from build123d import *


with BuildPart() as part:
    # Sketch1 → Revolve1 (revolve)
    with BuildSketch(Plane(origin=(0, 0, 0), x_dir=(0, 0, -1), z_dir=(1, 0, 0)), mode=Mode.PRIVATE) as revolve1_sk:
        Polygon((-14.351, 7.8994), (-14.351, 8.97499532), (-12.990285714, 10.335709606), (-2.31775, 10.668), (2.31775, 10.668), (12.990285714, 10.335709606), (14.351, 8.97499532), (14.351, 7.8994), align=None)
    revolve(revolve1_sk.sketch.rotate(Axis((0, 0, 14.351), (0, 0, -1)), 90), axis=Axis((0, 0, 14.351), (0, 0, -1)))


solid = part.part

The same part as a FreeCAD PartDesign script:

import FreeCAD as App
import Part
import Sketcher
Q = App.Units.Quantity

doc = App.newDocument("Part")
body = doc.addObject("PartDesign::Body", "Body")

# Sketch on YZ plane
sketch1 = body.newObject("Sketcher::SketchObject", "Sketch")
sketch1.AttachmentSupport = (doc.getObject("YZ_Plane"), [""])
sketch1.MapMode = "FlatFace"
sketch1.addGeometry(Part.LineSegment(App.Vector(9, 14.4, 0), App.Vector(7.9, 14.4, 0)), False)
sketch1.addGeometry(Part.LineSegment(App.Vector(7.9, 14.4, 0), App.Vector(7.9, -14.4, 0)), False)
sketch1.addGeometry(Part.LineSegment(App.Vector(7.9, -14.4, 0), App.Vector(9, -14.4, 0)), False)
sketch1.addGeometry(Part.LineSegment(App.Vector(9, -14.4, 0), App.Vector(10.3, -13, 0)), False)
sketch1.addGeometry(Part.LineSegment(App.Vector(10.3, -13, 0), App.Vector(10.7, -2.3, 0)), False)
sketch1.addGeometry(Part.LineSegment(App.Vector(10.7, -2.3, 0), App.Vector(10.7, 2.3, 0)), False)
sketch1.addGeometry(Part.LineSegment(App.Vector(10.7, 2.3, 0), App.Vector(10.3, 13, 0)), False)
sketch1.addGeometry(Part.LineSegment(App.Vector(10.3, 13, 0), App.Vector(9, 14.4, 0)), False)
sketch1.addConstraint(Sketcher.Constraint("Coincident", 0, 2, 1, 1))
sketch1.addConstraint(Sketcher.Constraint("Coincident", 1, 2, 2, 1))
sketch1.addConstraint(Sketcher.Constraint("Coincident", 2, 2, 3, 1))
sketch1.addConstraint(Sketcher.Constraint("Coincident", 3, 2, 4, 1))
sketch1.addConstraint(Sketcher.Constraint("Coincident", 4, 2, 5, 1))
sketch1.addConstraint(Sketcher.Constraint("Coincident", 5, 2, 6, 1))
sketch1.addConstraint(Sketcher.Constraint("Coincident", 6, 2, 7, 1))
sketch1.addConstraint(Sketcher.Constraint("Coincident", 7, 2, 0, 1))
sketch1.addConstraint(Sketcher.Constraint("Horizontal", 0))
sketch1.addConstraint(Sketcher.Constraint("Vertical", 1))
sketch1.addConstraint(Sketcher.Constraint("Horizontal", 2))
sketch1.addConstraint(Sketcher.Constraint("Vertical", 5))
sketch1.addConstraint(Sketcher.Constraint("Symmetric", 3, 2, 6, 2, -1))
sketch1.addConstraint(Sketcher.Constraint("Symmetric", 2, 2, 7, 2, -1))
sketch1.addConstraint(Sketcher.Constraint("Perpendicular", 3, 7))
sketch1.addConstraint(Sketcher.Constraint("Equal", 4, 6))
sketch1.addConstraint(Sketcher.Constraint("DistanceY", 1, 2, 1, 1, Q("1.13 in")))
sketch1.addConstraint(Sketcher.Constraint("DistanceX", -1, 1, 4, 2, Q("0.42 in")))
sketch1.addConstraint(Sketcher.Constraint("DistanceY", 5, 1, 5, 2, Q("0.1825 in")))
sketch1.addConstraint(Sketcher.Constraint("DistanceX", -1, 1, 0, 2, Q("0.311 in")))
sketch1.addConstraint(Sketcher.Constraint("Distance", 3, 1.924341))
sketch1.addConstraint(Sketcher.Constraint("DistanceX", 0, 2, 0, 1, 1.075595))
revolution = body.newObject("PartDesign::Revolution", "Revolution")
revolution.Profile = sketch1
revolution.ReferenceAxis = (sketch1, ["V_Axis"])
revolution.Angle = 360

doc.recompute()
